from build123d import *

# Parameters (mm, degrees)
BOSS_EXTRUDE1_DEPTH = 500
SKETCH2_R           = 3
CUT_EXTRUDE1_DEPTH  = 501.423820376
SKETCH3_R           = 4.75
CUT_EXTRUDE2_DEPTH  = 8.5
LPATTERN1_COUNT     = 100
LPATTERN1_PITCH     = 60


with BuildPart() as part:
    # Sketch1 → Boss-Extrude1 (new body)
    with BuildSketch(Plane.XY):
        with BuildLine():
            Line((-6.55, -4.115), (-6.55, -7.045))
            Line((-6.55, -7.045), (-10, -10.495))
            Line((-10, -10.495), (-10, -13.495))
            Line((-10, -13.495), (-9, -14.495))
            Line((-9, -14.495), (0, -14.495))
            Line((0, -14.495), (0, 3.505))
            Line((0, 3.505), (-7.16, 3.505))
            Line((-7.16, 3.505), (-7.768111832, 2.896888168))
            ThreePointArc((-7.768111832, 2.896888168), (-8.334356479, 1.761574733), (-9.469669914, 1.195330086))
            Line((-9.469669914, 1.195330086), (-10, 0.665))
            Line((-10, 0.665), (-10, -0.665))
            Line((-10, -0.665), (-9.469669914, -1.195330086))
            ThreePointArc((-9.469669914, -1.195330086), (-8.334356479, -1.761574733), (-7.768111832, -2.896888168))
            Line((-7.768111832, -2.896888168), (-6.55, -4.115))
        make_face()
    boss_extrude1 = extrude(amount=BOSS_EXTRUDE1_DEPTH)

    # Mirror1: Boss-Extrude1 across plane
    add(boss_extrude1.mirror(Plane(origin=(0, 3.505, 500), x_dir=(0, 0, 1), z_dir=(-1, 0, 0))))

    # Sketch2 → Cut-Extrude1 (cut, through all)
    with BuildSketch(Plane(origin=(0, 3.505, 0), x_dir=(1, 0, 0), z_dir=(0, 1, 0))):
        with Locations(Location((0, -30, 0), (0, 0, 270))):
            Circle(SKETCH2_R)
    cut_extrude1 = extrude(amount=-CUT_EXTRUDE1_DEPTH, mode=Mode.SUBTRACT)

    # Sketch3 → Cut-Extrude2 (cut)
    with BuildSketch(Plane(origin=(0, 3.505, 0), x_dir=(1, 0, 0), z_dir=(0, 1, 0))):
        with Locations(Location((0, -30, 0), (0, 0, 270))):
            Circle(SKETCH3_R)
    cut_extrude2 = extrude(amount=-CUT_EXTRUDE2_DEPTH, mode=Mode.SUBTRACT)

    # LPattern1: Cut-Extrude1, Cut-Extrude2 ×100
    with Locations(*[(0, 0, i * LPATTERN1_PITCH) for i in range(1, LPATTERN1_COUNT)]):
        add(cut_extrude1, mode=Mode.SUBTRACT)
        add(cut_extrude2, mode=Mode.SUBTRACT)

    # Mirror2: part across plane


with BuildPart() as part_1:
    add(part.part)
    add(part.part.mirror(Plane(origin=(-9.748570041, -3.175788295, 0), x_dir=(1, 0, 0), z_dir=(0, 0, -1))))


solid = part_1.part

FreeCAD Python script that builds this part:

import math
import FreeCAD as App
import Part
import Sketcher
from FreeCAD import Vector
Q = App.Units.Quantity

doc = App.newDocument("Part")
body = doc.addObject("PartDesign::Body", "Body")

sketch1 = body.newObject("Sketcher::SketchObject", "Sketch")
sketch1.AttachmentSupport = (doc.getObject("XY_Plane"), [""])
sketch1.MapMode = "FlatFace"
sketch1.addGeometry(Part.LineSegment(Vector(-6.5, -4.1, 0), Vector(-6.5, -7, 0)), False)
sketch1.addGeometry(Part.LineSegment(Vector(-6.5, -7, 0), Vector(-10, -10.5, 0)), False)
sketch1.addGeometry(Part.LineSegment(Vector(-10, -10.5, 0), Vector(-10, -13.5, 0)), False)
sketch1.addGeometry(Part.LineSegment(Vector(-10, -13.5, 0), Vector(-9, -14.5, 0)), False)
sketch1.addGeometry(Part.LineSegment(Vector(-9, -14.5, 0), Vector(0, -14.5, 0)), False)
sketch1.addGeometry(Part.LineSegment(Vector(0, -14.5, 0), Vector(0, 3.5, 0)), False)
sketch1.addGeometry(Part.LineSegment(Vector(0, 3.5, 0), Vector(-7.2, 3.5, 0)), False)
sketch1.addGeometry(Part.LineSegment(Vector(-7.2, 3.5, 0), Vector(-7.8, 2.9, 0)), False)
sketch1.addGeometry(Part.ArcOfCircle(Part.Circle(Vector(-9.7, 3.2, 0), Vector(0, 0, 1), 2), math.radians(-82), math.radians(-8)), False)
sketch1.addGeometry(Part.LineSegment(Vector(-9.5, 1.2, 0), Vector(-10, 0.7, 0)), False)
sketch1.addGeometry(Part.LineSegment(Vector(-10, 0.7, 0), Vector(-10, -0.7, 0)), False)
sketch1.addGeometry(Part.LineSegment(Vector(-10, -0.7, 0), Vector(-9.5, -1.2, 0)), False)
sketch1.addGeometry(Part.ArcOfCircle(Part.Circle(Vector(-9.7, -3.2, 0), Vector(0, 0, 1), 2), math.radians(8), math.radians(82)), False)
sketch1.addGeometry(Part.LineSegment(Vector(-7.8, -2.9, 0), Vector(-6.5, -4.1, 0)), False)
sketch1.addConstraint(Sketcher.Constraint("Coincident", 0, 2, 1, 1))
sketch1.addConstraint(Sketcher.Constraint("Coincident", 1, 2, 2, 1))
sketch1.addConstraint(Sketcher.Constraint("Coincident", 2, 2, 3, 1))
sketch1.addConstraint(Sketcher.Constraint("Coincident", 3, 2, 4, 1))
sketch1.addConstraint(Sketcher.Constraint("Coincident", 4, 2, 5, 1))
sketch1.addConstraint(Sketcher.Constraint("Coincident", 5, 2, 6, 1))
sketch1.addConstraint(Sketcher.Constraint("Coincident", 6, 2, 7, 1))
sketch1.addConstraint(Sketcher.Constraint("Coincident", 7, 2, 8, 2))
sketch1.addConstraint(Sketcher.Constraint("Coincident", 8, 1, 9, 1))
sketch1.addConstraint(Sketcher.Constraint("Coincident", 9, 2, 10, 1))
sketch1.addConstraint(Sketcher.Constraint("Coincident", 10, 2, 11, 1))
sketch1.addConstraint(Sketcher.Constraint("Coincident", 11, 2, 12, 2))
sketch1.addConstraint(Sketcher.Constraint("Coincident", 12, 1, 13, 1))
sketch1.addConstraint(Sketcher.Constraint("Coincident", 13, 2, 0, 1))
sketch1.addConstraint(Sketcher.Constraint("Vertical", 0))
sketch1.addConstraint(Sketcher.Constraint("Vertical", 2))
sketch1.addConstraint(Sketcher.Constraint("Horizontal", 4))
sketch1.addConstraint(Sketcher.Constraint("Vertical", 5))
sketch1.addConstraint(Sketcher.Constraint("Horizontal", 6))
sketch1.addConstraint(Sketcher.Constraint("Vertical", 10))
sketch1.addConstraint(Sketcher.Constraint("Equal", 8, 12))
sketch1.addConstraint(Sketcher.Constraint("Symmetric", 8, 3, 12, 3, -1))
sketch1.addConstraint(Sketcher.Constraint("PointOnObject", 4, 2, -2))
sketch1.addConstraint(Sketcher.Constraint("Perpendicular", 1, 3))
sketch1.addConstraint(Sketcher.Constraint("Perpendicular", 3, 7))
sketch1.addConstraint(Sketcher.Constraint("Parallel", 7, 9))
sketch1.addConstraint(Sketcher.Constraint("Perpendicular", 9, 11))
sketch1.addConstraint(Sketcher.Constraint("Parallel", 11, 13))
sketch1.addConstraint(Sketcher.Constraint("Vertical", 2, 2, 9, 2))
sketch1.addConstraint(Sketcher.Constraint("Vertical", 8, 1, 11, 2))
sketch1.addConstraint(Sketcher.Constraint("Vertical", 7, 2, 12, 1))
sketch1.addConstraint(Sketcher.Constraint("Equal", 9, 11))
sketch1.addConstraint(Sketcher.Constraint("Radius", 8, Q("2 mm")))
sketch1.addConstraint(Sketcher.Constraint("DistanceX", 4, 1, 4, 2, Q("9 mm")))
sketch1.addConstraint(Sketcher.Constraint("DistanceY", 2, 2, 2, 1, Q("3 mm")))
sketch1.addConstraint(Sketcher.Constraint("DistanceY", 5, 1, 5, 2, Q("18 mm")))
sketch1.addConstraint(Sketcher.Constraint("DistanceX", 1, 2, -1, 1, Q("10 mm")))
sketch1.addConstraint(Sketcher.Constraint("DistanceX", 6, 2, 6, 1, Q("7.16 mm")))
sketch1.addConstraint(Sketcher.Constraint("DistanceY", 0, 2, 0, 1, Q("2.93 mm")))
sketch1.addConstraint(Sketcher.Constraint("DistanceY", 10, 2, 10, 1, Q("1.33 mm")))
sketch1.addConstraint(Sketcher.Constraint("Distance", 7, Q("0.86 mm")))
sketch1.addConstraint(Sketcher.Constraint("Distance", 9, Q("0.75 mm")))
sketch1.addConstraint(Sketcher.Constraint("DistanceX", 0, 2, -1, 1, Q("6.55 mm")))
pad1 = body.newObject("PartDesign::Pad", "Pad")
pad1.Profile = sketch1
pad1.Length = 500
doc.recompute()

mirrored = body.newObject("PartDesign::Mirrored", "Mirrored")
mirrored.Originals = [pad1]
mirrored.MirrorPlane = (doc.getObject("YZ_Plane"), [""])
body.Tip = mirrored

sketch2 = body.newObject("Sketcher::SketchObject", "Sketch001")
sketch2.AttachmentSupport = (doc.getObject("XZ_Plane"), [""])
sketch2.MapMode = "FlatFace"
sketch2.AttachmentOffset = App.Placement(Vector(0, 0, -3.505), App.Rotation())
sketch2.addGeometry(Part.Circle(Vector(0, 30, 0), Vector(0, 0, 1), 3), False)
sketch2.addConstraint(Sketcher.Constraint("PointOnObject", 0, 3, -2))
sketch2.addConstraint(Sketcher.Constraint("Diameter", 0, Q("6 mm")))
sketch2.addConstraint(Sketcher.Constraint("DistanceY", -1, 1, 0, 3, Q("30 mm")))
pocket1 = body.newObject("PartDesign::Pocket", "Pocket")
pocket1.Profile = sketch2
pocket1.Type = "ThroughAll"
pocket1.Reversed = True

sketch3 = body.newObject("Sketcher::SketchObject", "Sketch002")
sketch3.AttachmentSupport = (doc.getObject("XZ_Plane"), [""])
sketch3.MapMode = "FlatFace"
sketch3.AttachmentOffset = App.Placement(Vector(0, 0, -3.505), App.Rotation())
sketch3.addGeometry(Part.Circle(Vector(0, 30, 0), Vector(0, 0, 1), 4.8), False)
sketch3.addConstraint(Sketcher.Constraint("PointOnObject", 0, 3, -2))
sketch3.addConstraint(Sketcher.Constraint("Diameter", 0, Q("9.5 mm")))
sketch3.addConstraint(Sketcher.Constraint("DistanceY", -1, 1, 0, 3, Q("30 mm")))
pocket2 = body.newObject("PartDesign::Pocket", "Pocket001")
pocket2.Profile = sketch3
pocket2.Length = 8.5
pocket2.Reversed = True
doc.recompute()

linearpattern = body.newObject("PartDesign::LinearPattern", "LinearPattern")
linearpattern.Originals = [pocket1, pocket2]
linearpattern.Direction = (doc.getObject("Z_Axis"), [""])
linearpattern.Mode = "offset"
linearpattern.Offset = 60
linearpattern.Occurrences = 100
body.Tip = linearpattern
body2 = doc.addObject("PartDesign::Body", "Body001")
doc.recompute()

body2.BaseFeature = body
doc.recompute()

mirroring = doc.addObject("Part::Mirroring", "Mirroring")
mirroring.Source = body
mirroring.Base = Vector(-9.74857, -3.175788, 0)
mirroring.Normal = Vector(0, 0, -1)
body3 = doc.addObject("PartDesign::Body", "Body002")
body3.BaseFeature = mirroring
boolean = body2.newObject("PartDesign::Boolean", "Boolean")
boolean.Type = "Fuse"
boolean.addObjects([body3])
doc.recompute()
mirroring.Visibility = False

doc.recompute()
